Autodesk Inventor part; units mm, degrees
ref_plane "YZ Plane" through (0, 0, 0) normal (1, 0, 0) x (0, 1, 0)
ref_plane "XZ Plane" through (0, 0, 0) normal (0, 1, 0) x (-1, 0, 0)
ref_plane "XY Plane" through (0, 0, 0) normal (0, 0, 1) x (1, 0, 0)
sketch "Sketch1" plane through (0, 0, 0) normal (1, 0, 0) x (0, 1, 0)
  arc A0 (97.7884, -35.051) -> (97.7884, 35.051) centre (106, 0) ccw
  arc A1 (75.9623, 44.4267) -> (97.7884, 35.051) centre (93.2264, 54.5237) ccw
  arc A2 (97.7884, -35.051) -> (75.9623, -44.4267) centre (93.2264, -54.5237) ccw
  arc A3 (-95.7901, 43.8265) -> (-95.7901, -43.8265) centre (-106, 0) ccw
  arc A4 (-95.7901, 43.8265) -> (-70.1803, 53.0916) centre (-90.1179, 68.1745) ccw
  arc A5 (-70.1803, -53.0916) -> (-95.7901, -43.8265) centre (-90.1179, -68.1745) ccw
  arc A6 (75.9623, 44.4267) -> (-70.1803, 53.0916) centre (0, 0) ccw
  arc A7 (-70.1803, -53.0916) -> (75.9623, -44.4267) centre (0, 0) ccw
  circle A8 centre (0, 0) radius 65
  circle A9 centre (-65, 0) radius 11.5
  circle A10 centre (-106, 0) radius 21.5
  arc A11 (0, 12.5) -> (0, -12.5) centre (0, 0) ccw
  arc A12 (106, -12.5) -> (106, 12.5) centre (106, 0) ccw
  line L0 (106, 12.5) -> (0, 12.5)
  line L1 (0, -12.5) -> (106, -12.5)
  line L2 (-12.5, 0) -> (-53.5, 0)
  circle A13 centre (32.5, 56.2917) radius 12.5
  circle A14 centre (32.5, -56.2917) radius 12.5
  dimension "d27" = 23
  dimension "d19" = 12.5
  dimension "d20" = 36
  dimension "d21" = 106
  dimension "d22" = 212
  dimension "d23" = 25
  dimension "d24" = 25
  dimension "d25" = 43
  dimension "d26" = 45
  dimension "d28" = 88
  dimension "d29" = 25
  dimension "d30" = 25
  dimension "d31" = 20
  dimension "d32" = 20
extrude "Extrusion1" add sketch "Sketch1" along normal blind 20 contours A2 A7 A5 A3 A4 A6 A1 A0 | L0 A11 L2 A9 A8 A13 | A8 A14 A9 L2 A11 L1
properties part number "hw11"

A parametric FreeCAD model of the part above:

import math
import FreeCAD as App
import Part
import Sketcher

V = App.Vector
Q = App.Units.Quantity

doc = App.newDocument("Part")
body = doc.addObject("PartDesign::Body", "Body")

# Sketch on YZ plane
sketch1 = body.newObject("Sketcher::SketchObject", "Sketch")
sketch1.AttachmentSupport = (doc.getObject("YZ_Plane"), [""])
sketch1.MapMode = "FlatFace"
sketch1.addGeometry(Part.ArcOfCircle(Part.Circle(V(93.2264, -54.5237, 0), V(0, 0, 1), 19.999947), math.radians(76.814728), math.radians(149.678544)), False)
sketch1.addGeometry(Part.ArcOfCircle(Part.Circle(V(106, 0, 0), V(0, 0, 1), 36.000041), math.radians(-103.185221), math.radians(103.185221)), False)
sketch1.addGeometry(Part.ArcOfCircle(Part.Circle(V(93.2264, 54.5237, 0), V(0, 0, 1), 19.999964), math.radians(-149.678544), math.radians(-76.814728)), False)
sketch1.addGeometry(Part.ArcOfCircle(Part.Circle(V(0, 0, 0), V(0, 0, 1), 87.999957), math.radians(30.321314), math.radians(142.892389)), False)
sketch1.addGeometry(Part.ArcOfCircle(Part.Circle(V(-90.1179, 68.1745, 0), V(0, 0, 1), 24.999979), math.radians(-103.113935), math.radians(-37.107698)), False)
sketch1.addGeometry(Part.ArcOfCircle(Part.Circle(V(-106, 0, 0), V(0, 0, 1), 45.000046), math.radians(76.886168), math.radians(283.113832)), False)
sketch1.addGeometry(Part.ArcOfCircle(Part.Circle(V(-90.1179, -68.1745, 0), V(0, 0, 1), 25.000035), math.radians(37.107698), math.radians(103.113935)), False)
sketch1.addGeometry(Part.ArcOfCircle(Part.Circle(V(0, 0, 0), V(0, 0, 1), 88.000015), math.radians(-142.892389), math.radians(-30.321314)), False)
sketch1.addGeometry(Part.Circle(V(-106, 0, 0), V(0, 0, 1), 21.5), False)
sketch1.addGeometry(Part.Circle(V(32.5, 56.2917, 0), V(0, 0, 1), 12.5), False)
sketch1.addGeometry(Part.Circle(V(-65, 0, 0), V(0, 0, 1), 11.5), False)
sketch1.addGeometry(Part.Circle(V(32.5, -56.2917, 0), V(0, 0, 1), 12.5), False)
sketch1.addGeometry(Part.LineSegment(V(106, -12.5, 0), V(0, -12.5, 0)), False)
sketch1.addGeometry(Part.ArcOfCircle(Part.Circle(V(0, 0, 0), V(0, 0, 1), 12.5), math.radians(90), math.radians(270)), False)
sketch1.addGeometry(Part.LineSegment(V(0, 12.5, 0), V(106, 12.5, 0)), False)
sketch1.addGeometry(Part.ArcOfCircle(Part.Circle(V(106, 0, 0), V(0, 0, 1), 12.5), math.radians(-90), math.radians(90)), False)
sketch1.addConstraint(Sketcher.Constraint("Tangent", 0, 1, 1, 1))
sketch1.addConstraint(Sketcher.Constraint("Tangent", 1, 2, 2, 2))
sketch1.addConstraint(Sketcher.Constraint("Tangent", 2, 1, 3, 1))
sketch1.addConstraint(Sketcher.Constraint("Tangent", 3, 2, 4, 2))
sketch1.addConstraint(Sketcher.Constraint("Tangent", 4, 1, 5, 1))
sketch1.addConstraint(Sketcher.Constraint("Tangent", 5, 2, 6, 2))
sketch1.addConstraint(Sketcher.Constraint("Tangent", 6, 1, 7, 1))
sketch1.addConstraint(Sketcher.Constraint("Tangent", 7, 2, 0, 2))
sketch1.addConstraint(Sketcher.Constraint("Tangent", 12, 2, 13, 2))
sketch1.addConstraint(Sketcher.Constraint("Tangent", 13, 1, 14, 1))
sketch1.addConstraint(Sketcher.Constraint("Tangent", 14, 2, 15, 2))
sketch1.addConstraint(Sketcher.Constraint("Tangent", 15, 1, 12, 1))
sketch1.addConstraint(Sketcher.Constraint("Horizontal", 12))
sketch1.addConstraint(Sketcher.Constraint("Horizontal", 14))
sketch1.addConstraint(Sketcher.Constraint("Coincident", 3, 3, -1, 1))
sketch1.addConstraint(Sketcher.Constraint("Coincident", 7, 3, -1, 1))
sketch1.addConstraint(Sketcher.Constraint("Coincident", 13, 3, -1, 1))
sketch1.addConstraint(Sketcher.Constraint("Coincident", 8, 3, 5, 3))
sketch1.addConstraint(Sketcher.Constraint("Coincident", 15, 3, 1, 3))
sketch1.addConstraint(Sketcher.Constraint("Equal", 0, 2))
sketch1.addConstraint(Sketcher.Constraint("Equal", 4, 6))
sketch1.addConstraint(Sketcher.Constraint("Equal", 3, 7))
sketch1.addConstraint(Sketcher.Constraint("Equal", 9, 11))
sketch1.addConstraint(Sketcher.Constraint("Equal", 11, 13))
sketch1.addConstraint(Sketcher.Constraint("Symmetric", 1, 3, 5, 3, -1, 1))
sketch1.addConstraint(Sketcher.Constraint("Symmetric", 9, 3, 11, 3, -1))
sketch1.addConstraint(Sketcher.Constraint("PointOnObject", 10, 3, -1))
sketch1.addConstraint(Sketcher.Constraint("Diameter", 8, Q("43 mm")))
sketch1.addConstraint(Sketcher.Constraint("Diameter", 9, Q("25 mm")))
sketch1.addConstraint(Sketcher.Constraint("Diameter", 10, Q("23 mm")))
sketch1.addConstraint(Sketcher.Constraint("Radius", 0, Q("20 mm")))
sketch1.addConstraint(Sketcher.Constraint("Radius", 1, Q("36 mm")))
sketch1.addConstraint(Sketcher.Constraint("Radius", 3, Q("88 mm")))
sketch1.addConstraint(Sketcher.Constraint("Radius", 4, Q("25 mm")))
sketch1.addConstraint(Sketcher.Constraint("Radius", 5, Q("45 mm")))
sketch1.addConstraint(Sketcher.Constraint("DistanceX", 12, 2, 12, 1, Q("106 mm")))
sketch1.addConstraint(Sketcher.Constraint("DistanceX", 10, 3, -1, 1, Q("65 mm")))
sketch1.addConstraint(Sketcher.Constraint("DistanceX", -1, 1, 9, 3, Q("32.5 mm")))
sketch1.addConstraint(Sketcher.Constraint("DistanceY", 2, 3, 9, 3, Q("1.768 mm")))
pad1 = body.newObject("PartDesign::Pad", "Pad")
pad1.Profile = sketch1
pad1.Length = 20

doc.recompute()
